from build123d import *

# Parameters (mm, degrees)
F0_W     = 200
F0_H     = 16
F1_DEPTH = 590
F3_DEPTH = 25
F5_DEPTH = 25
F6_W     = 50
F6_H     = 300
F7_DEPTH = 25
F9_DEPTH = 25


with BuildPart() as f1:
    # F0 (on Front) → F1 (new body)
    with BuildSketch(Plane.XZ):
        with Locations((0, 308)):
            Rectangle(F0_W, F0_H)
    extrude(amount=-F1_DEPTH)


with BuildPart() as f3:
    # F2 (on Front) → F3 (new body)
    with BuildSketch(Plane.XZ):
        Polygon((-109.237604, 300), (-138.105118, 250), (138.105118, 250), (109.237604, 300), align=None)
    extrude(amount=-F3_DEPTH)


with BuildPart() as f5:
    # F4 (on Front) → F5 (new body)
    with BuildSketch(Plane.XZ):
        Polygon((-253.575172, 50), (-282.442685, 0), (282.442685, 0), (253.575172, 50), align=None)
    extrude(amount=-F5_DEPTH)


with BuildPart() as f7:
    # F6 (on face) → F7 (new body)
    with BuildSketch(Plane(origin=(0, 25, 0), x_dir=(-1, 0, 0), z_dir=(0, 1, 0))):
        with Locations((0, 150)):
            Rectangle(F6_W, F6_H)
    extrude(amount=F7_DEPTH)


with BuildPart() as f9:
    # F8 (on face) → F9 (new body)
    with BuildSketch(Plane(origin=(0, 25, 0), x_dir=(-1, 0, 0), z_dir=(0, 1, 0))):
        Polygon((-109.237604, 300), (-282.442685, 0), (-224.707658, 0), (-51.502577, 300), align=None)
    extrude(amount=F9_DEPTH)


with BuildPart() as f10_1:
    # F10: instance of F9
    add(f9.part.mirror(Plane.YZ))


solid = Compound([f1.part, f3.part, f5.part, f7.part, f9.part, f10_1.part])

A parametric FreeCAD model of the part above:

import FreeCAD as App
import Part
import Sketcher
Q = App.Units.Quantity

doc = App.newDocument("Part")
body = doc.addObject("PartDesign::Body", "Body")

sketch1 = body.newObject("Sketcher::SketchObject", "Sketch")
sketch1.AttachmentSupport = (doc.getObject("XZ_Plane"), [""])
sketch1.MapMode = "FlatFace"
sketch1.addGeometry([
    Part.LineSegment(App.Vector(-100, 316, 0), App.Vector(-100, 300, 0)),
    Part.LineSegment(App.Vector(-100, 300, 0), App.Vector(100, 300, 0)),
    Part.LineSegment(App.Vector(100, 300, 0), App.Vector(100, 316, 0)),
    Part.LineSegment(App.Vector(100, 316, 0), App.Vector(-100, 316, 0)),
], False)
sketch1.addConstraint([
    Sketcher.Constraint("Coincident", 0, 2, 1, 1),
    Sketcher.Constraint("Coincident", 1, 2, 2, 1),
    Sketcher.Constraint("Coincident", 2, 2, 3, 1),
    Sketcher.Constraint("Coincident", 3, 2, 0, 1),
    Sketcher.Constraint("Vertical", 0),
    Sketcher.Constraint("Horizontal", 1),
    Sketcher.Constraint("Vertical", 2),
    Sketcher.Constraint("Horizontal", 3),
    Sketcher.Constraint("DistanceX", 1, 1, 1, 2, Q("200 mm")),
    Sketcher.Constraint("DistanceY", 0, 2, 0, 1, Q("16 mm")),
    Sketcher.Constraint("DistanceX", 0, 2, -1, 1, Q("100 mm")),
    Sketcher.Constraint("DistanceY", -1, 1, 0, 2, Q("300 mm")),
])
pad1 = body.newObject("PartDesign::Pad", "Pad")
pad1.Profile = sketch1
pad1.Length = 590
pad1.Reversed = True
body2 = doc.addObject("PartDesign::Body", "Body001")

sketch2 = body2.newObject("Sketcher::SketchObject", "Sketch001")
sketch2.AttachmentSupport = (doc.getObject("XZ_Plane001"), [""])
sketch2.MapMode = "FlatFace"
sketch2.addGeometry([
    Part.LineSegment(App.Vector(-109, 300, 0), App.Vector(-138, 250, 0)),
    Part.LineSegment(App.Vector(-138, 250, 0), App.Vector(138, 250, 0)),
    Part.LineSegment(App.Vector(138, 250, 0), App.Vector(109, 300, 0)),
    Part.LineSegment(App.Vector(109, 300, 0), App.Vector(-109, 300, 0)),
], False)
sketch2.addConstraint([
    Sketcher.Constraint("Coincident", 0, 2, 1, 1),
    Sketcher.Constraint("Coincident", 1, 2, 2, 1),
    Sketcher.Constraint("Coincident", 2, 2, 3, 1),
    Sketcher.Constraint("Coincident", 3, 2, 0, 1),
    Sketcher.Constraint("Horizontal", 1),
    Sketcher.Constraint("Horizontal", 3),
    Sketcher.Constraint("Equal", 0, 2),
    Sketcher.Constraint("Angle", 0, Q("-120 deg")),
    Sketcher.Constraint("DistanceY", -1, 1, 0, 2, Q("250 mm")),
    Sketcher.Constraint("DistanceY", -1, 1, 2, 2, Q("300 mm")),
    Sketcher.Constraint("DistanceX", 3, 2, 3, 1, Q("218.475208 mm")),
    Sketcher.Constraint("DistanceX", 0, 2, -1, 1, Q("138.105118 mm")),
])
pad2 = body2.newObject("PartDesign::Pad", "Pad001")
pad2.Profile = sketch2
pad2.Length = 25
pad2.Reversed = True
body3 = doc.addObject("PartDesign::Body", "Body002")

sketch3 = body3.newObject("Sketcher::SketchObject", "Sketch002")
sketch3.AttachmentSupport = (doc.getObject("XZ_Plane002"), [""])
sketch3.MapMode = "FlatFace"
sketch3.addGeometry([
    Part.LineSegment(App.Vector(-254, 50, 0), App.Vector(-282, 0, 0)),
    Part.LineSegment(App.Vector(-282, 0, 0), App.Vector(282, 0, 0)),
    Part.LineSegment(App.Vector(282, 0, 0), App.Vector(254, 50, 0)),
    Part.LineSegment(App.Vector(254, 50, 0), App.Vector(-254, 50, 0)),
], False)
sketch3.addConstraint([
    Sketcher.Constraint("Coincident", 0, 2, 1, 1),
    Sketcher.Constraint("Coincident", 1, 2, 2, 1),
    Sketcher.Constraint("Coincident", 2, 2, 3, 1),
    Sketcher.Constraint("Coincident", 3, 2, 0, 1),
    Sketcher.Constraint("Horizontal", 1),
    Sketcher.Constraint("Horizontal", 3),
    Sketcher.Constraint("Symmetric", 0, 2, 1, 2, -1, 1),
    Sketcher.Constraint("Equal", 0, 2),
    Sketcher.Constraint("Angle", 0, Q("-120 deg")),
    Sketcher.Constraint("DistanceY", -1, 1, 2, 2, Q("50 mm")),
    Sketcher.Constraint("DistanceX", 1, 1, 1, 2, Q("564.88537 mm")),
])
pad3 = body3.newObject("PartDesign::Pad", "Pad002")
pad3.Profile = sketch3
pad3.Length = 25
pad3.Reversed = True
body4 = doc.addObject("PartDesign::Body", "Body003")

sketch4 = body4.newObject("Sketcher::SketchObject", "Sketch003")
sketch4.AttachmentSupport = (doc.getObject("XZ_Plane003"), [""])
sketch4.MapMode = "FlatFace"
sketch4.AttachmentOffset = App.Placement(App.Vector(0, 0, -25), App.Rotation())
sketch4.addGeometry([
    Part.LineSegment(App.Vector(25, 300, 0), App.Vector(25, 0, 0)),
    Part.LineSegment(App.Vector(25, 0, 0), App.Vector(-25, 0, 0)),
    Part.LineSegment(App.Vector(-25, 0, 0), App.Vector(-25, 300, 0)),
    Part.LineSegment(App.Vector(-25, 300, 0), App.Vector(25, 300, 0)),
], False)
sketch4.addConstraint([
    Sketcher.Constraint("Coincident", 0, 2, 1, 1),
    Sketcher.Constraint("Coincident", 1, 2, 2, 1),
    Sketcher.Constraint("Coincident", 2, 2, 3, 1),
    Sketcher.Constraint("Coincident", 3, 2, 0, 1),
    Sketcher.Constraint("Vertical", 0),
    Sketcher.Constraint("Horizontal", 1),
    Sketcher.Constraint("Vertical", 2),
    Sketcher.Constraint("Horizontal", 3),
    Sketcher.Constraint("Symmetric", 0, 2, 1, 2, -1, 1),
    Sketcher.Constraint("DistanceX", 1, 2, 1, 1, Q("50 mm")),
    Sketcher.Constraint("DistanceY", 0, 2, 0, 1, Q("300 mm")),
])
pad4 = body4.newObject("PartDesign::Pad", "Pad003")
pad4.Profile = sketch4
pad4.Length = 25
pad4.Reversed = True
body5 = doc.addObject("PartDesign::Body", "Body004")

sketch5 = body5.newObject("Sketcher::SketchObject", "Sketch004")
sketch5.AttachmentSupport = (doc.getObject("XZ_Plane004"), [""])
sketch5.MapMode = "FlatFace"
sketch5.AttachmentOffset = App.Placement(App.Vector(0, 0, -25), App.Rotation())
sketch5.addGeometry([
    Part.LineSegment(App.Vector(109, 300, 0), App.Vector(282, 0, 0)),
    Part.LineSegment(App.Vector(282, 0, 0), App.Vector(225, 0, 0)),
    Part.LineSegment(App.Vector(225, 0, 0), App.Vector(52, 300, 0)),
    Part.LineSegment(App.Vector(52, 300, 0), App.Vector(109, 300, 0)),
], False)
sketch5.addConstraint([
    Sketcher.Constraint("Coincident", 0, 2, 1, 1),
    Sketcher.Constraint("Coincident", 1, 2, 2, 1),
    Sketcher.Constraint("Coincident", 2, 2, 3, 1),
    Sketcher.Constraint("Coincident", 3, 2, 0, 1),
    Sketcher.Constraint("Horizontal", 1),
    Sketcher.Constraint("Horizontal", 3),
    Sketcher.Constraint("PointOnObject", 0, 2, -1),
    Sketcher.Constraint("Parallel", 0, 2),
    Sketcher.Constraint("Angle", 0, Q("-60 deg")),
    Sketcher.Constraint("DistanceY", -1, 1, 2, 2, Q("300 mm")),
    Sketcher.Constraint("DistanceX", 1, 2, 1, 1, Q("57.735027 mm")),
    Sketcher.Constraint("DistanceX", -1, 1, 1, 2, Q("224.707658 mm")),
])
pad5 = body5.newObject("PartDesign::Pad", "Pad004")
pad5.Profile = sketch5
pad5.Length = 25
pad5.Reversed = True
body6 = doc.addObject("PartDesign::Body", "Body005")
doc.recompute()

mirroring = doc.addObject("Part::Mirroring", "Mirroring")
mirroring.Source = body5
mirroring.Base = App.Vector(0, 0, 0)
mirroring.Normal = App.Vector(1, 0, 0)
body6.BaseFeature = mirroring
doc.recompute()
mirroring.Visibility = False

doc.recompute()
